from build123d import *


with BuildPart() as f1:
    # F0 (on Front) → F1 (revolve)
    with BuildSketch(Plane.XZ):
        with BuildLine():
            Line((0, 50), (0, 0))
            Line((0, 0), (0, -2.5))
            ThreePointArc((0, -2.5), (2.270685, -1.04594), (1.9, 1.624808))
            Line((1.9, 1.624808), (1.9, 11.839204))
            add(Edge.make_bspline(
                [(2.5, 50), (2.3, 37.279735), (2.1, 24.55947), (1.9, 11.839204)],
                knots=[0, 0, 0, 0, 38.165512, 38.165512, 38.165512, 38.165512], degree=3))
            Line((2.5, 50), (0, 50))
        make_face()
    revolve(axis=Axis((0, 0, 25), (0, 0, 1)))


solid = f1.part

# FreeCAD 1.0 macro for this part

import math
import FreeCAD as App
import Part
import Sketcher

doc = App.newDocument("Part")
body = doc.addObject("PartDesign::Body", "Body")

# Sketch on XZ plane
sketch1 = doc.addObject("Sketcher::SketchObject", "Sketch")
body.addObject(sketch1)
sketch1.AttachmentSupport = (doc.XZ_Plane, [""])
sketch1.MapMode = "FlatFace"
sketch1.addGeometry(Part.LineSegment(App.Vector(0, 50, 0), App.Vector(0, -2.5, 0)), False)
sketch1.addGeometry(Part.ArcOfCircle(Part.Circle(App.Vector(0, 0, 0), App.Vector(0, 0, 1), 2.5), math.radians(-90.000003), math.radians(40.535809)), False)
sketch1.addGeometry(Part.LineSegment(App.Vector(1.9, 1.624808, 0), App.Vector(1.9, 11.839204, 0)), False)
sketch1.addGeometry(Part.BSplineCurve([App.Vector(2.5, 50, 0), App.Vector(2.3, 37.279735, 0), App.Vector(2.1, 24.55947, 0), App.Vector(1.9, 11.839204, 0)], [4, 4], [0, 38.165512], False, 3, [1, 1, 1, 1], False), False)
sketch1.addGeometry(Part.LineSegment(App.Vector(2.5, 50, 0), App.Vector(0, 50, 0)), False)
sketch1.addConstraint(Sketcher.Constraint("Block", 3))
sketch1.addConstraint(Sketcher.Constraint("Coincident", 0, 2, 1, 1))
sketch1.addConstraint(Sketcher.Constraint("Coincident", 1, 2, 2, 1))
sketch1.addConstraint(Sketcher.Constraint("Coincident", 2, 2, 3, 2))
sketch1.addConstraint(Sketcher.Constraint("Coincident", 3, 1, 4, 1))
sketch1.addConstraint(Sketcher.Constraint("Coincident", 4, 2, 0, 1))
sketch1.addConstraint(Sketcher.Constraint("Vertical", 0))
sketch1.addConstraint(Sketcher.Constraint("Vertical", 2))
sketch1.addConstraint(Sketcher.Constraint("Horizontal", 4))
sketch1.addConstraint(Sketcher.Constraint("Coincident", 1, 3, -1, 1))
sketch1.addConstraint(Sketcher.Constraint("PointOnObject", 0, 2, -2))
sketch1.addConstraint(Sketcher.Constraint("Radius", 1, 2.5))
revolution = doc.addObject("PartDesign::Revolution", "Revolution")
body.addObject(revolution)
revolution.Profile = sketch1
revolution.ReferenceAxis = (sketch1, ["V_Axis"])
revolution.Angle = 360

doc.recompute()
